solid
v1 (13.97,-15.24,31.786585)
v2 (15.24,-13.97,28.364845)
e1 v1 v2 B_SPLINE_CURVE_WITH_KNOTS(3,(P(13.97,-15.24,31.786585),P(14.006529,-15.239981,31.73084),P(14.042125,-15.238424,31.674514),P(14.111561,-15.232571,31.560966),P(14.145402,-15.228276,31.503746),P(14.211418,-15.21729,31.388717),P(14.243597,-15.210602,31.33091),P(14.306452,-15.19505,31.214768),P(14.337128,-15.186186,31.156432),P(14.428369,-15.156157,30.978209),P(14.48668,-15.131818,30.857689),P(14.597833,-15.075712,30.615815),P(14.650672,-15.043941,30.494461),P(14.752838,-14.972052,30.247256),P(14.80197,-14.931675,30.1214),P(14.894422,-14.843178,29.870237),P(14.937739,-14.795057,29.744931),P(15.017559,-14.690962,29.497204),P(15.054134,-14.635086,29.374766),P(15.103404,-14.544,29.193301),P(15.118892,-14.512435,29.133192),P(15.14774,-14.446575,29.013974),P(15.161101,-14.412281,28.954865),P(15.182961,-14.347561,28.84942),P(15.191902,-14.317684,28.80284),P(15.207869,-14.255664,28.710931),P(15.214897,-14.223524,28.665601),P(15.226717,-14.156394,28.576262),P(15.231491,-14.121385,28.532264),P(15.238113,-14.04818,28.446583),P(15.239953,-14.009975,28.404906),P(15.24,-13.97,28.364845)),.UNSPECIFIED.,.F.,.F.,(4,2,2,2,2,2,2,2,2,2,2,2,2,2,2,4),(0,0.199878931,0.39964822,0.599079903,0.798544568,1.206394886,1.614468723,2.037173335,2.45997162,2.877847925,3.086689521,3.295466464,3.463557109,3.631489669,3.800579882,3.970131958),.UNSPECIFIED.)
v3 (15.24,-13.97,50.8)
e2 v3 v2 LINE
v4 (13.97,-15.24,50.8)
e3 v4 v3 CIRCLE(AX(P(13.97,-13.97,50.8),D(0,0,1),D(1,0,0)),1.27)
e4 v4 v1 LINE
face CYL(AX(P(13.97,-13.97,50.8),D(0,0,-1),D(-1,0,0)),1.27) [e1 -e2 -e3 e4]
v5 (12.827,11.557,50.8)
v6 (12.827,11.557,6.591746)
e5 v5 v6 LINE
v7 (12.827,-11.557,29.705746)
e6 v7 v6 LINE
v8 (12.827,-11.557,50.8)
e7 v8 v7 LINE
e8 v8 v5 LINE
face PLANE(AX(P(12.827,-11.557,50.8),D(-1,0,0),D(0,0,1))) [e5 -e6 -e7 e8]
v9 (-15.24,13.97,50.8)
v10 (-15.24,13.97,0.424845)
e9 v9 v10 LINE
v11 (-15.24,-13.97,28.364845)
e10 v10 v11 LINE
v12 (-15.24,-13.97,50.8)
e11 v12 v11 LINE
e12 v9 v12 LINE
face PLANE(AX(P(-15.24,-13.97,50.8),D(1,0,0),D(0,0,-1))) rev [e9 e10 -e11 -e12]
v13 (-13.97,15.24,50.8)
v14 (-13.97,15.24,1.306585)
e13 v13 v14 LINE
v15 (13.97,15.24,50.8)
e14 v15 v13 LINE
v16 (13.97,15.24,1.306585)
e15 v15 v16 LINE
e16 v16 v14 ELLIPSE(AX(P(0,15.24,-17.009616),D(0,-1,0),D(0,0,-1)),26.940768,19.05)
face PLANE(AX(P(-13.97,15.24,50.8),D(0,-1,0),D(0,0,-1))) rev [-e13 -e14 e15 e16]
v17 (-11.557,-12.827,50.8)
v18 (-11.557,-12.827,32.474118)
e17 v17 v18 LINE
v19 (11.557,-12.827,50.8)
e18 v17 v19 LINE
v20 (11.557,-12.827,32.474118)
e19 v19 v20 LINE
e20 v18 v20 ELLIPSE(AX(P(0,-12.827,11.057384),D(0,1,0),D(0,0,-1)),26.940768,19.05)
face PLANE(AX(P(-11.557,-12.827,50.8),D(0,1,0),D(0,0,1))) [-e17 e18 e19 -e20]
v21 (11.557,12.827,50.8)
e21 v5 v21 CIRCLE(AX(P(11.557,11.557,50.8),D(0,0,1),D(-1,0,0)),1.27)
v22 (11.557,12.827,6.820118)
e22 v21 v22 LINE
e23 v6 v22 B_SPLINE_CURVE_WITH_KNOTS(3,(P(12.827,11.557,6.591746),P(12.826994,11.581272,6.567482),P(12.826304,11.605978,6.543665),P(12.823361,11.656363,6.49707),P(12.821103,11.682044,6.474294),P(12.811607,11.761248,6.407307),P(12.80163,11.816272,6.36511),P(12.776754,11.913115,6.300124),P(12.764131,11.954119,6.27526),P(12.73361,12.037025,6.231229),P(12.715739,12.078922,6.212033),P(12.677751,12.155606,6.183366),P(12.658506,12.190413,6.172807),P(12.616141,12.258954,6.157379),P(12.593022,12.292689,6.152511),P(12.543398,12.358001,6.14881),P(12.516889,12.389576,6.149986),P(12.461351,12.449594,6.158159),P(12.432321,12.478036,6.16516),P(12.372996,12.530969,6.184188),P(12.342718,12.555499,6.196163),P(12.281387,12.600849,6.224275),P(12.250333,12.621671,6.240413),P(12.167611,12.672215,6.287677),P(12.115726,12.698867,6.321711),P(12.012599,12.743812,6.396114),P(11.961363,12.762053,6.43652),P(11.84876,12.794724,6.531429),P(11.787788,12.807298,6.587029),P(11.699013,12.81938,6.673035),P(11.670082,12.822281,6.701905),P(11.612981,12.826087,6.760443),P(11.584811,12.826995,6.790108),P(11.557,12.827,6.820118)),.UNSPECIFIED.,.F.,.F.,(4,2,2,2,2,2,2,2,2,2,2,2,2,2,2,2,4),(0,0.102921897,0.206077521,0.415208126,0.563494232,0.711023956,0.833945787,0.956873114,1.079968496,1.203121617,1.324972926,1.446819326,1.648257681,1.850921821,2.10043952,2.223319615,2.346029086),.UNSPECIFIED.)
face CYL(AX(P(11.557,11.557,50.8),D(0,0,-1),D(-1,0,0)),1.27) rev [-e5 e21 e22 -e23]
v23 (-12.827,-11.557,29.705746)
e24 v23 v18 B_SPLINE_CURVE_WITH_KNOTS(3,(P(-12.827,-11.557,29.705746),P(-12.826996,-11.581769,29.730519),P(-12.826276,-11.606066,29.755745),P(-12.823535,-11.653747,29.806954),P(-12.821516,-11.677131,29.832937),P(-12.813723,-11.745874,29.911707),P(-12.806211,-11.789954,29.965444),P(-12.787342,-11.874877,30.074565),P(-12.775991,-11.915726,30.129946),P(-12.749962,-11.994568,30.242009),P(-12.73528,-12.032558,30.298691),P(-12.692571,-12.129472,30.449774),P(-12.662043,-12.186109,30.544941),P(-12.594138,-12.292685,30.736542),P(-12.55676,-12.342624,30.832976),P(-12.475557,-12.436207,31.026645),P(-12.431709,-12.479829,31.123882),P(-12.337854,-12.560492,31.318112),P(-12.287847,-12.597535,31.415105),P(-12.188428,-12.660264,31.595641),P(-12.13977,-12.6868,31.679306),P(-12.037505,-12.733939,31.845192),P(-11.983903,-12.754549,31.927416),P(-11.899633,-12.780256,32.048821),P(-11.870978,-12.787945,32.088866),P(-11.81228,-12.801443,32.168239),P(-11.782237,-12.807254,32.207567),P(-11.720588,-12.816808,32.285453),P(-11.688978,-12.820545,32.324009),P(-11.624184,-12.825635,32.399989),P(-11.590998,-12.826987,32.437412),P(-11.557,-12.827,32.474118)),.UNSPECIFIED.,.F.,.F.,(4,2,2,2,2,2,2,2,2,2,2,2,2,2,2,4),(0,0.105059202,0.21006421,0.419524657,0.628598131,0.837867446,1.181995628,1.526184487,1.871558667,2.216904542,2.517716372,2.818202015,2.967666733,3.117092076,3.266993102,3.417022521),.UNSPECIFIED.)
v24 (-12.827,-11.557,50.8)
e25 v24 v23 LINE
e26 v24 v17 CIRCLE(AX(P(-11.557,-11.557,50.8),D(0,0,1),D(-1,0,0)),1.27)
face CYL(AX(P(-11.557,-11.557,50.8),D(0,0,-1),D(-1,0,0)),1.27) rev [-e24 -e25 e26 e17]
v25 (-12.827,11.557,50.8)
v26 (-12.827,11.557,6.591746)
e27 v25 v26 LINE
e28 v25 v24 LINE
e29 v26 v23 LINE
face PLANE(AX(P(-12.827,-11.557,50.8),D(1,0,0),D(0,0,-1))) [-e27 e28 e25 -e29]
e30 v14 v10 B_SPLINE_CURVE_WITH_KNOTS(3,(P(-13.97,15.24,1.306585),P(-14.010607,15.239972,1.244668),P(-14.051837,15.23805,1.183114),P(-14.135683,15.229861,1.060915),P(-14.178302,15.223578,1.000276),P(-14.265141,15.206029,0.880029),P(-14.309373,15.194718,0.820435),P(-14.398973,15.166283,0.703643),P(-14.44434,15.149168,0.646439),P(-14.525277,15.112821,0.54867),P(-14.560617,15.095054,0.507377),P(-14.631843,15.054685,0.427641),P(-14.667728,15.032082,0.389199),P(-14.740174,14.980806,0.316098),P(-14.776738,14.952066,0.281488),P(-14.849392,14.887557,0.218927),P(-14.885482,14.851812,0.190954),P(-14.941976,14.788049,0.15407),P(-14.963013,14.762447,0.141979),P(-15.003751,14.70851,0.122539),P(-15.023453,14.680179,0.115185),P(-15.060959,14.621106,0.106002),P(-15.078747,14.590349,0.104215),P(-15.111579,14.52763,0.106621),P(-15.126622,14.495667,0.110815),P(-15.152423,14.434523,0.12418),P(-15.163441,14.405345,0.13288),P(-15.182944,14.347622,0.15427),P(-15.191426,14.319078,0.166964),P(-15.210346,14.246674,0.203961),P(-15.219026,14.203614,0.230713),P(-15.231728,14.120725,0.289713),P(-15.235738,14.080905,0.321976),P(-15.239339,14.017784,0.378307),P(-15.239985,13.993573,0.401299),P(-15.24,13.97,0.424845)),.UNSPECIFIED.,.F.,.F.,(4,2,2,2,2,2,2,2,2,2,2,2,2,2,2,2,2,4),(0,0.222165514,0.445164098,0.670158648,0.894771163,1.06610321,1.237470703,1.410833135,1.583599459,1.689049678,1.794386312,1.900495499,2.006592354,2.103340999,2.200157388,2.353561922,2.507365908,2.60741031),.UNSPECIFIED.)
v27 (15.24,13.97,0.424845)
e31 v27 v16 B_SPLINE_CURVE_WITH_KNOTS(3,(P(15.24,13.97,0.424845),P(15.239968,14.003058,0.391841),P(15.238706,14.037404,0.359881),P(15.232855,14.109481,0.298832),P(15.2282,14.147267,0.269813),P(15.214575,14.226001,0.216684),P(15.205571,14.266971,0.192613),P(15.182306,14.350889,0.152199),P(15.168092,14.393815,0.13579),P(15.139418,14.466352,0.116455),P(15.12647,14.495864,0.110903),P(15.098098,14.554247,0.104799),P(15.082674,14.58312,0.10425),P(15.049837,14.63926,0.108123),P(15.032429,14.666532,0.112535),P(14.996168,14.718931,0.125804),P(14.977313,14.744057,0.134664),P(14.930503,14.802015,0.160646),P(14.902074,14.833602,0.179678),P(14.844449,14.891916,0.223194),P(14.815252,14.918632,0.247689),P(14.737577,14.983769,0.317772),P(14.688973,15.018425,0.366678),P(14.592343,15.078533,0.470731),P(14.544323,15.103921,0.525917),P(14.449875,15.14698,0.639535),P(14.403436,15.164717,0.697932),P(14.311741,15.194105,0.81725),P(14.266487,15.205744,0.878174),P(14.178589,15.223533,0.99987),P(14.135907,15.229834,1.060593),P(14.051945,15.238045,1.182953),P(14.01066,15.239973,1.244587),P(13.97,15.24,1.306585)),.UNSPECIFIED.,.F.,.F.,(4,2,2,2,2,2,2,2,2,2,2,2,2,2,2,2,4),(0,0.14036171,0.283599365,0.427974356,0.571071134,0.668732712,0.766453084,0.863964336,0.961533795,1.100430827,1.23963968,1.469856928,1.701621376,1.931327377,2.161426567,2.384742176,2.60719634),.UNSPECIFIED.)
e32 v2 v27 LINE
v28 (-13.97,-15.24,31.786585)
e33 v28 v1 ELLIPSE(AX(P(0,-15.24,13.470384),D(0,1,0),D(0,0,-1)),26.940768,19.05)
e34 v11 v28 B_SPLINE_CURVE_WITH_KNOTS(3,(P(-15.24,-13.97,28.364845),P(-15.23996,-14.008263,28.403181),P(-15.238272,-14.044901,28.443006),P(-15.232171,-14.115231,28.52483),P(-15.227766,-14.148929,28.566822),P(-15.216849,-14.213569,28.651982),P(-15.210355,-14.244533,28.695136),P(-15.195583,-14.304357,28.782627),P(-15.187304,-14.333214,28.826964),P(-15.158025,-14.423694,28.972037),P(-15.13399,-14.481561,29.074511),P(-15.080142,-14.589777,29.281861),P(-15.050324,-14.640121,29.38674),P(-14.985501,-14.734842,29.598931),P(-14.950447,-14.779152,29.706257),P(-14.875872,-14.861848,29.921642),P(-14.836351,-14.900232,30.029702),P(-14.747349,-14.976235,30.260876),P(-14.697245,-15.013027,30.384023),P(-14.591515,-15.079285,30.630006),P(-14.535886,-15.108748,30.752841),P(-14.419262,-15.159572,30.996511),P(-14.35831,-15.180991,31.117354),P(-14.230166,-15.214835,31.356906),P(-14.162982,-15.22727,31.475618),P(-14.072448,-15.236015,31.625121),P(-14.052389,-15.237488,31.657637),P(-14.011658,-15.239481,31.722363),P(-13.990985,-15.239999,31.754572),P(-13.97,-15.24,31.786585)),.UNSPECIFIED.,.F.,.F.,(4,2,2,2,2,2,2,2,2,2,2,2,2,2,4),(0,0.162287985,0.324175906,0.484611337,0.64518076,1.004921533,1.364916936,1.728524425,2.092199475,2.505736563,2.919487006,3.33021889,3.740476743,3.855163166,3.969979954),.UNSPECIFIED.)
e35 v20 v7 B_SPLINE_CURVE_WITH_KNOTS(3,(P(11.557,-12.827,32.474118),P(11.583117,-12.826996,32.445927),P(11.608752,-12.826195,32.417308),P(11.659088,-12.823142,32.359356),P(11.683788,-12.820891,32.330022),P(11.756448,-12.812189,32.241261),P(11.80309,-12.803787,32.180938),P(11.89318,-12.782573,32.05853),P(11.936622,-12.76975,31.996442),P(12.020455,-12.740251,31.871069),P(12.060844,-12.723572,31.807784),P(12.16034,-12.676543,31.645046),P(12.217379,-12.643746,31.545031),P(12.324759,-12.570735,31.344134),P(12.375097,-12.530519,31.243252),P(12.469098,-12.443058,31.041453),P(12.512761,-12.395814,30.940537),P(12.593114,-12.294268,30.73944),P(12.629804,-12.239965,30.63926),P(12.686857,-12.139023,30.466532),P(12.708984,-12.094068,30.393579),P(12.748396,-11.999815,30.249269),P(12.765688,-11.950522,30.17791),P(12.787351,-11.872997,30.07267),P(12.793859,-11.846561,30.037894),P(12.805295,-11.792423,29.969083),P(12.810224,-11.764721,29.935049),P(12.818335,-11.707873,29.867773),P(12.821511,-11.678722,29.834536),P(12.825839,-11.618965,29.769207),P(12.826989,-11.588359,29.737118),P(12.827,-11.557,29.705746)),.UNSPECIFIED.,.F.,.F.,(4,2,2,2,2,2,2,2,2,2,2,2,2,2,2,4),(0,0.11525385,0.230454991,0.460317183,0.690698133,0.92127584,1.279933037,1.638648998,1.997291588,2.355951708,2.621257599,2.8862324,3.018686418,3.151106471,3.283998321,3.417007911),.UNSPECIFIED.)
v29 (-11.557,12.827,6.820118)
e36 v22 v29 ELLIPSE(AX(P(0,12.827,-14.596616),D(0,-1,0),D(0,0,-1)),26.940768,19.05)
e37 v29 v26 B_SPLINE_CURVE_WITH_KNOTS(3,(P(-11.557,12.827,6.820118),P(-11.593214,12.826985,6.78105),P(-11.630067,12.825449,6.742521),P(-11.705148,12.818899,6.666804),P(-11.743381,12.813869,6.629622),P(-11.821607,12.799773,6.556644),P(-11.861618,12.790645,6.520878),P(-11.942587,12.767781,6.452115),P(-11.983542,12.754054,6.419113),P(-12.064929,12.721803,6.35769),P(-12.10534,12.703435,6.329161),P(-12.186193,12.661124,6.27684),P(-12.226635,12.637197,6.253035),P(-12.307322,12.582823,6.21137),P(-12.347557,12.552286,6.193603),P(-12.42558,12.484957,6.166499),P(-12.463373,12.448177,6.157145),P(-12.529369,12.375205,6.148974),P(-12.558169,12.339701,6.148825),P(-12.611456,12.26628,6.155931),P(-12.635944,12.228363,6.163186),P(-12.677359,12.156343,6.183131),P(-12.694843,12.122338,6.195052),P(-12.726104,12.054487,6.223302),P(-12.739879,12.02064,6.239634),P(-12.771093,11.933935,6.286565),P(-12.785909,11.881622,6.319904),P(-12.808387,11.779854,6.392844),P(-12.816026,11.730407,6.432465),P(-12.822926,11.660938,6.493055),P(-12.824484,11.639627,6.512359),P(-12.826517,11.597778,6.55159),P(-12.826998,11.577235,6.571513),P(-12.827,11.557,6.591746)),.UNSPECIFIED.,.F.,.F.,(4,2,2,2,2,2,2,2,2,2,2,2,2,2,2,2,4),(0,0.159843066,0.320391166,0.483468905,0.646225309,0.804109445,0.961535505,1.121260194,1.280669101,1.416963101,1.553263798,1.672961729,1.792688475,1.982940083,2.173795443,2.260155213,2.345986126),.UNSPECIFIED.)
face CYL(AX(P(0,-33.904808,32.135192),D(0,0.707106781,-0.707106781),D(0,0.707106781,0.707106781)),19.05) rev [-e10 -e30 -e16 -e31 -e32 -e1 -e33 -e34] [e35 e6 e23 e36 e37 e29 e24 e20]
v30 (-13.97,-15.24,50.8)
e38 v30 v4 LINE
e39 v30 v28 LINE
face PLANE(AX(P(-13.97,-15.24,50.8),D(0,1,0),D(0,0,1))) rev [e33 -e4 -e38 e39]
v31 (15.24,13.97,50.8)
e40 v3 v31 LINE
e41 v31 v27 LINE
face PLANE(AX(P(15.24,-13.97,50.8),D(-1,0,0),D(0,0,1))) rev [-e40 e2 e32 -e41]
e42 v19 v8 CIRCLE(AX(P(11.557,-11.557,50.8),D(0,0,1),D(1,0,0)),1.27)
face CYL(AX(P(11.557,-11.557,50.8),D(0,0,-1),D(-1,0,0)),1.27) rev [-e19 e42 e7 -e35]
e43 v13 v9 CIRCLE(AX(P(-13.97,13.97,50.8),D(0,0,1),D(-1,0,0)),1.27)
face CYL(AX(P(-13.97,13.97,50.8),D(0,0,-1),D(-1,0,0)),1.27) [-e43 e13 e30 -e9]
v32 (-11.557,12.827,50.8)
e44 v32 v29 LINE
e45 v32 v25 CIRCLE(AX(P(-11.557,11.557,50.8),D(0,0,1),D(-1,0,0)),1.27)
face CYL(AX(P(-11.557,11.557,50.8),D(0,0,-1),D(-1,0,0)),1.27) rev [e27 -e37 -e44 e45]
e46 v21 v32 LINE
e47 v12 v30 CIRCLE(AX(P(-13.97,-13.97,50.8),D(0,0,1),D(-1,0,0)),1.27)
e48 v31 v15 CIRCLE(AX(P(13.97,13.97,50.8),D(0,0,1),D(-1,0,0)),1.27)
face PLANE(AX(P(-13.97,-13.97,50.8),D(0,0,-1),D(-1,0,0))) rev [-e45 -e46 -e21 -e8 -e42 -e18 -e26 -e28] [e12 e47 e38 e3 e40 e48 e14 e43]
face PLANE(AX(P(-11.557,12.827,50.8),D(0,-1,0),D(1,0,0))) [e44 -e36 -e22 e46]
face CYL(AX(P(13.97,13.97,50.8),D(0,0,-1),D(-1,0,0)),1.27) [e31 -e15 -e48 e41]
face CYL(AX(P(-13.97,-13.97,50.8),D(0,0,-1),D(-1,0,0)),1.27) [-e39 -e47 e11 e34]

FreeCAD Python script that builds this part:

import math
import FreeCAD as App
import Part
import Sketcher
Q = App.Units.Quantity

doc = App.newDocument("Part")
body = doc.addObject("PartDesign::Body", "Body")

sketch1 = body.newObject("Sketcher::SketchObject", "Sketch")
sketch1.AttachmentSupport = (doc.getObject("XY_Plane"), [""])
sketch1.MapMode = "FlatFace"
sketch1.addGeometry([
    Part.LineSegment(App.Vector(-13.97, -15.24, 0), App.Vector(13.97, -15.24, 0)),
    Part.ArcOfCircle(Part.Circle(App.Vector(13.97, -13.97, 0), App.Vector(0, 0, 1), 1.27), math.radians(-90), math.radians(0)),
    Part.LineSegment(App.Vector(15.24, -13.97, 0), App.Vector(15.24, 13.97, 0)),
    Part.ArcOfCircle(Part.Circle(App.Vector(13.97, 13.97, 0), App.Vector(0, 0, 1), 1.27), math.radians(0), math.radians(90)),
    Part.LineSegment(App.Vector(13.97, 15.24, 0), App.Vector(-13.97, 15.24, 0)),
    Part.ArcOfCircle(Part.Circle(App.Vector(-13.97, 13.97, 0), App.Vector(0, 0, 1), 1.27), math.radians(90), math.radians(180)),
    Part.LineSegment(App.Vector(-15.24, 13.97, 0), App.Vector(-15.24, -13.97, 0)),
    Part.ArcOfCircle(Part.Circle(App.Vector(-13.97, -13.97, 0), App.Vector(0, 0, 1), 1.27), math.radians(180), math.radians(270)),
    Part.LineSegment(App.Vector(11.557, -12.827, 0), App.Vector(-11.557, -12.827, 0)),
    Part.ArcOfCircle(Part.Circle(App.Vector(-11.557, -11.557, 0), App.Vector(0, 0, 1), 1.27), math.radians(180), math.radians(270)),
    Part.LineSegment(App.Vector(-12.827, -11.557, 0), App.Vector(-12.827, 11.557, 0)),
    Part.ArcOfCircle(Part.Circle(App.Vector(-11.557, 11.557, 0), App.Vector(0, 0, 1), 1.27), math.radians(90), math.radians(180)),
    Part.LineSegment(App.Vector(-11.557, 12.827, 0), App.Vector(11.557, 12.827, 0)),
    Part.ArcOfCircle(Part.Circle(App.Vector(11.557, 11.557, 0), App.Vector(0, 0, 1), 1.27), math.radians(0), math.radians(90)),
    Part.LineSegment(App.Vector(12.827, 11.557, 0), App.Vector(12.827, -11.557, 0)),
    Part.ArcOfCircle(Part.Circle(App.Vector(11.557, -11.557, 0), App.Vector(0, 0, 1), 1.27), math.radians(-90), math.radians(0)),
], False)
sketch1.addConstraint([
    Sketcher.Constraint("Tangent", 0, 2, 1, 1),
    Sketcher.Constraint("Tangent", 1, 2, 2, 1),
    Sketcher.Constraint("Tangent", 2, 2, 3, 1),
    Sketcher.Constraint("Tangent", 3, 2, 4, 1),
    Sketcher.Constraint("Tangent", 4, 2, 5, 1),
    Sketcher.Constraint("Tangent", 5, 2, 6, 1),
    Sketcher.Constraint("Tangent", 6, 2, 7, 1),
    Sketcher.Constraint("Tangent", 7, 2, 0, 1),
    Sketcher.Constraint("Tangent", 8, 2, 9, 2),
    Sketcher.Constraint("Tangent", 9, 1, 10, 1),
    Sketcher.Constraint("Tangent", 10, 2, 11, 2),
    Sketcher.Constraint("Tangent", 11, 1, 12, 1),
    Sketcher.Constraint("Tangent", 12, 2, 13, 2),
    Sketcher.Constraint("Tangent", 13, 1, 14, 1),
    Sketcher.Constraint("Tangent", 14, 2, 15, 2),
    Sketcher.Constraint("Tangent", 15, 1, 8, 1),
    Sketcher.Constraint("Horizontal", 0),
    Sketcher.Constraint("Vertical", 2),
    Sketcher.Constraint("Horizontal", 4),
    Sketcher.Constraint("Vertical", 6),
    Sketcher.Constraint("Horizontal", 8),
    Sketcher.Constraint("Vertical", 10),
    Sketcher.Constraint("Horizontal", 12),
    Sketcher.Constraint("Vertical", 14),
    Sketcher.Constraint("Equal", 1, 3),
    Sketcher.Constraint("Equal", 3, 5),
    Sketcher.Constraint("Equal", 5, 7),
    Sketcher.Constraint("Equal", 7, 9),
    Sketcher.Constraint("Equal", 9, 11),
    Sketcher.Constraint("Equal", 11, 13),
    Sketcher.Constraint("Equal", 13, 15),
    Sketcher.Constraint("Symmetric", 1, 3, 5, 3, -1, 1),
    Sketcher.Constraint("Symmetric", 9, 3, 13, 3, -1, 1),
    Sketcher.Constraint("Equal", 4, 2),
    Sketcher.Constraint("Equal", 12, 10),
    Sketcher.Constraint("Radius", 1, Q("0.05 in")),
    Sketcher.Constraint("DistanceX", 0, 1, 0, 2, Q("1.1 in")),
    Sketcher.Constraint("DistanceX", 8, 2, 8, 1, Q("0.91 in")),
])
pad1 = body.newObject("PartDesign::Pad", "Pad")
pad1.Profile = sketch1
pad1.Length = Q("2 in")

sketch2 = body.newObject("Sketcher::SketchObject", "Sketch001")
sketch2.Placement = App.Placement(App.Vector(0, 7.62, -7.62), App.Rotation(App.Vector(-1, 0, 0), App.Vector(0, 0.707106781, 0.707106781), App.Vector(0, 0.707106781, -0.707106781), "ZXY"))
sketch2.addGeometry(Part.Circle(App.Vector(0, -1.251307, 0), App.Vector(0, 0, 1), 19.05), False)
sketch2.addConstraint([
    Sketcher.Constraint("PointOnObject", 0, 3, -2),
    Sketcher.Constraint("Diameter", 0, Q("1.5 in")),
    Sketcher.Constraint("DistanceY", 0, 3, -1, 1, 1.251307),
])
pocket1 = body.newObject("PartDesign::Pocket", "Pocket")
pocket1.Profile = sketch2
pocket1.Type = "ThroughAll"

doc.recompute()
